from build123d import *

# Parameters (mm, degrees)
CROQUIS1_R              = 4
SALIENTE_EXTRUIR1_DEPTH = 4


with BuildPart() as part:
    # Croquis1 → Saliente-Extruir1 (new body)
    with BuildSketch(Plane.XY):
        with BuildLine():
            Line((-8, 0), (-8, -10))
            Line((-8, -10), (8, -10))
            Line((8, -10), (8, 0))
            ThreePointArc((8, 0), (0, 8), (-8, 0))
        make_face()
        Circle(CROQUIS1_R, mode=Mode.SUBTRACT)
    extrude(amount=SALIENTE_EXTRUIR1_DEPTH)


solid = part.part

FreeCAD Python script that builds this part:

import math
import FreeCAD as App
import Part
import Sketcher
from FreeCAD import Vector
Q = App.Units.Quantity

doc = App.newDocument("Part")
body = doc.addObject("PartDesign::Body", "Body")

# Sketch on XY plane
sketch1 = doc.addObject("Sketcher::SketchObject", "Sketch")
body.addObject(sketch1)
sketch1.AttachmentSupport = (doc.XY_Plane, [""])
sketch1.MapMode = "FlatFace"
sketch1.addGeometry(Part.LineSegment(Vector(-8, 0, 0), Vector(-8, -10, 0)), False)
sketch1.addGeometry(Part.LineSegment(Vector(-8, -10, 0), Vector(8, -10, 0)), False)
sketch1.addGeometry(Part.LineSegment(Vector(8, -10, 0), Vector(8, 0, 0)), False)
sketch1.addGeometry(Part.ArcOfCircle(Part.Circle(Vector(0, 0, 0), Vector(0, 0, 1), 8), math.radians(0), math.radians(180)), False)
sketch1.addGeometry(Part.Circle(Vector(0, 0, 0), Vector(0, 0, 1), 4), False)
sketch1.addConstraint(Sketcher.Constraint("Coincident", 0, 2, 1, 1))
sketch1.addConstraint(Sketcher.Constraint("Coincident", 1, 2, 2, 1))
sketch1.addConstraint(Sketcher.Constraint("Tangent", 2, 2, 3, 1))
sketch1.addConstraint(Sketcher.Constraint("Tangent", 3, 2, 0, 1))
sketch1.addConstraint(Sketcher.Constraint("Vertical", 0))
sketch1.addConstraint(Sketcher.Constraint("Horizontal", 1))
sketch1.addConstraint(Sketcher.Constraint("Vertical", 2))
sketch1.addConstraint(Sketcher.Constraint("Coincident", 3, 3, -1, 1))
sketch1.addConstraint(Sketcher.Constraint("Coincident", 4, 3, -1, 1))
sketch1.addConstraint(Sketcher.Constraint("Diameter", 4, Q("8 mm")))
sketch1.addConstraint(Sketcher.Constraint("Radius", 3, Q("8 mm")))
sketch1.addConstraint(Sketcher.Constraint("DistanceY", 0, 2, 0, 1, Q("10 mm")))
pad1 = doc.addObject("PartDesign::Pad", "Pad")
body.addObject(pad1)
pad1.Profile = sketch1
pad1.Length = 4

doc.recompute()
